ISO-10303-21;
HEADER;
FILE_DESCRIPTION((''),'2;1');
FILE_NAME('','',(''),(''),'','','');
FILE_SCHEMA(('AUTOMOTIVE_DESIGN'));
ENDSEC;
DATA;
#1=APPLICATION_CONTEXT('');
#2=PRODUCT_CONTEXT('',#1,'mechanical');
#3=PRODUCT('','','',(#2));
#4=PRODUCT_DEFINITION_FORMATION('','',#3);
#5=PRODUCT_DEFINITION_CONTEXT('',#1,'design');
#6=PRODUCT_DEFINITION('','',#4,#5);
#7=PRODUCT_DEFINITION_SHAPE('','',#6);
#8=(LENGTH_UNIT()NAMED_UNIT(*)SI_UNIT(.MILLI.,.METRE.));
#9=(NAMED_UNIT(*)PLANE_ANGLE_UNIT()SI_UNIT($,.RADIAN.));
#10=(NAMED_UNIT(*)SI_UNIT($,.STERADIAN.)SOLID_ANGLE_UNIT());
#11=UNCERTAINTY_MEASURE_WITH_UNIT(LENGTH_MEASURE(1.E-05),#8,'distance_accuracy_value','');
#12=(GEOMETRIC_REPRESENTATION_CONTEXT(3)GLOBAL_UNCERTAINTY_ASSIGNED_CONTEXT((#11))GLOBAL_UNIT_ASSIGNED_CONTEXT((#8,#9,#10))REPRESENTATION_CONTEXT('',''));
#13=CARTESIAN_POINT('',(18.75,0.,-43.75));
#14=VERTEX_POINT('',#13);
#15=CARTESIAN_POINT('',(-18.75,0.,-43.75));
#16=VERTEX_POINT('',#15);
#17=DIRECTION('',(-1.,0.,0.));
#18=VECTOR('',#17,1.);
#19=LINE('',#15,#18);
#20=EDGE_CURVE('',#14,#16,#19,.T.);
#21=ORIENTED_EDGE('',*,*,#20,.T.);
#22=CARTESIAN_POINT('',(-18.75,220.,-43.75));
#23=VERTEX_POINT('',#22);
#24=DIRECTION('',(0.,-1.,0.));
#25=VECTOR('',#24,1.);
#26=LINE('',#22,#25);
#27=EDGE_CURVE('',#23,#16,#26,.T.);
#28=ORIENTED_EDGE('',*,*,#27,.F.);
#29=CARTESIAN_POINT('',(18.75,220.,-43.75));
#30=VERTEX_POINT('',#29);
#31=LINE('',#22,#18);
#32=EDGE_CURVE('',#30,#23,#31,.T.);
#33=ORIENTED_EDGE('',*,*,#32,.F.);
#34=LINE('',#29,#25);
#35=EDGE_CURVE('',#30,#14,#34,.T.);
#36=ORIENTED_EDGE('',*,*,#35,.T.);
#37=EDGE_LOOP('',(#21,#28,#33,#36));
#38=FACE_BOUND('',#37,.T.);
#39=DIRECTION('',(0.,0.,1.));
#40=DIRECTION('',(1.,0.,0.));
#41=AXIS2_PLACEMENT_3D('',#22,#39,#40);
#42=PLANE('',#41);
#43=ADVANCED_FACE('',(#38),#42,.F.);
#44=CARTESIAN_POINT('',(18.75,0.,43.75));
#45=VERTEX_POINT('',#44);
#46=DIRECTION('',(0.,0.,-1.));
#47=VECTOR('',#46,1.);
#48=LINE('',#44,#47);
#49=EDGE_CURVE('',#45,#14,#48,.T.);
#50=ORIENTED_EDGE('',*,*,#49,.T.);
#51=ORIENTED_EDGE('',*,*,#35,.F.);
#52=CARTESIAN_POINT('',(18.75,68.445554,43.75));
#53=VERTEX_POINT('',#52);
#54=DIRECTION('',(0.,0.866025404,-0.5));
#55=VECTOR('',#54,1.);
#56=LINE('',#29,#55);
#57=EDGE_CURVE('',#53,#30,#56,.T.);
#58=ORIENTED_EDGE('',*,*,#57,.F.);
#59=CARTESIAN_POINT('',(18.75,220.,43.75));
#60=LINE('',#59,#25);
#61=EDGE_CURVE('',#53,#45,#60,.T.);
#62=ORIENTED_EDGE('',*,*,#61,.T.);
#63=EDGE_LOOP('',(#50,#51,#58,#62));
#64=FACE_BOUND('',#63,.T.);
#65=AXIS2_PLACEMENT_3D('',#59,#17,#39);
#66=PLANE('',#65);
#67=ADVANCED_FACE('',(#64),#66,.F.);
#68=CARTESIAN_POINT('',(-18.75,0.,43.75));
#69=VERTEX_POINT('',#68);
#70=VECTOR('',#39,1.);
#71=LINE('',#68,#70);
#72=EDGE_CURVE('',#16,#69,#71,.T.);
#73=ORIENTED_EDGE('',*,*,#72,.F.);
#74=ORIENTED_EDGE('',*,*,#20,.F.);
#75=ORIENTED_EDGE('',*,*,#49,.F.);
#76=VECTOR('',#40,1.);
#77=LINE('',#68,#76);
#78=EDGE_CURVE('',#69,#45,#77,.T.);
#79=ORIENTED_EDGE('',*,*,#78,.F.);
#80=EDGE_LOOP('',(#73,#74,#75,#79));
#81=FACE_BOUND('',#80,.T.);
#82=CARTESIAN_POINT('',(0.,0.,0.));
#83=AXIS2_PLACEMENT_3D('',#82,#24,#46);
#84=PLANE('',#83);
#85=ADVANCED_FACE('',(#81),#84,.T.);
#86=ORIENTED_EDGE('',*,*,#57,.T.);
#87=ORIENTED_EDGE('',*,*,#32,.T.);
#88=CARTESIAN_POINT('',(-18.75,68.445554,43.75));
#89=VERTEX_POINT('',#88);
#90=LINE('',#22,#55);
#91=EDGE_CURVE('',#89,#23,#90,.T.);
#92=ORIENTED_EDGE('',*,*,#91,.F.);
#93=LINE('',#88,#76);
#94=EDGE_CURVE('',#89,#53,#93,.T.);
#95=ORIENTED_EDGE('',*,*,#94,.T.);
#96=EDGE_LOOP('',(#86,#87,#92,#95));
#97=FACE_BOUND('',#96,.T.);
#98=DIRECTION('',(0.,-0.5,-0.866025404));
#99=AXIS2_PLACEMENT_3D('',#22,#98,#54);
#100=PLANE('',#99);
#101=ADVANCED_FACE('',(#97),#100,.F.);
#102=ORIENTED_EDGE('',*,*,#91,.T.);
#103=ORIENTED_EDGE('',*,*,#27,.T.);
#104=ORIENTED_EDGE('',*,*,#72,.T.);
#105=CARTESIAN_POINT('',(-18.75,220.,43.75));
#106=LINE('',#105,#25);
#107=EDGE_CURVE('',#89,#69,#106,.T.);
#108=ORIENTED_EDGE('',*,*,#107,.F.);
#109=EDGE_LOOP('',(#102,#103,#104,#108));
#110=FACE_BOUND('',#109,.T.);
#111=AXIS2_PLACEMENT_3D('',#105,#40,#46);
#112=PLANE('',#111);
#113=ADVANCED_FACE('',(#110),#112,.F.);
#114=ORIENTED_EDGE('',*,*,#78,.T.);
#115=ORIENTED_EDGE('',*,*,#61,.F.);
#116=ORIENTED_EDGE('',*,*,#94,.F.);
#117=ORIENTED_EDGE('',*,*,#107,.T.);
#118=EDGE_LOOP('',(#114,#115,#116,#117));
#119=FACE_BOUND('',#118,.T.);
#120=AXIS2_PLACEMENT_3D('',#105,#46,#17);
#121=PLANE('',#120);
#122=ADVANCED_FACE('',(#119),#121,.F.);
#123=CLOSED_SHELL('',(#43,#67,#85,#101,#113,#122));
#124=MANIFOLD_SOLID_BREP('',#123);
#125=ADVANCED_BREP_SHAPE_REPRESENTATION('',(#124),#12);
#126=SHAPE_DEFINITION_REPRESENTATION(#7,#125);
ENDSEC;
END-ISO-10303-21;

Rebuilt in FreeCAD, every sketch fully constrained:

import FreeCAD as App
import Part
import Sketcher
Q = App.Units.Quantity


def add_polygon(sketch, points):
    """Adds a closed chain of lines whose ends are joined by coincident constraints."""
    first, n = sketch.GeometryCount, len(points)
    for a, b in zip(points, points[1:] + points[:1]):
        sketch.addGeometry(Part.LineSegment(App.Vector(*a, 0), App.Vector(*b, 0)), False)
    for i in range(n):
        sketch.addConstraint(Sketcher.Constraint("Coincident", first + i, 2, first + (i + 1) % n, 1))

doc = App.newDocument("Part")
body = doc.addObject("PartDesign::Body", "Body")

# Sketch on XZ plane
sketch1 = body.newObject("Sketcher::SketchObject", "Sketch")
sketch1.AttachmentSupport = (doc.getObject("XZ_Plane"), [""])
sketch1.MapMode = "FlatFace"
add_polygon(sketch1, [(-19, -44), (-19, 44), (19, 44), (19, -44)])  # lines 0-3
sketch1.addConstraint(Sketcher.Constraint("Vertical", 0))
sketch1.addConstraint(Sketcher.Constraint("Horizontal", 1))
sketch1.addConstraint(Sketcher.Constraint("Vertical", 2))
sketch1.addConstraint(Sketcher.Constraint("Horizontal", 3))
sketch1.addConstraint(Sketcher.Constraint("Symmetric", 0, 2, 2, 2, -1, 1))
sketch1.addConstraint(Sketcher.Constraint("DistanceX", 1, 1, 1, 2, Q("37.5 mm")))
sketch1.addConstraint(Sketcher.Constraint("DistanceY", 0, 1, 0, 2, Q("87.5 mm")))
pad1 = body.newObject("PartDesign::Pad", "Pad")
pad1.Profile = sketch1
pad1.Length = 220
pad1.Reversed = True

# Sketch on YZ plane
sketch2 = body.newObject("Sketcher::SketchObject", "Sketch001")
sketch2.AttachmentSupport = (doc.getObject("YZ_Plane"), [""])
sketch2.MapMode = "FlatFace"
add_polygon(sketch2, [(68, 44), (220, -44), (220, 44)])  # lines 0-2
sketch2.addConstraint(Sketcher.Constraint("Vertical", 1))
sketch2.addConstraint(Sketcher.Constraint("Horizontal", 2))
sketch2.addConstraint(Sketcher.Constraint("Angle", 0, Q("-30 deg")))
sketch2.addConstraint(Sketcher.Constraint("Distance", 0, Q("175 mm")))
sketch2.addConstraint(Sketcher.Constraint("DistanceX", -1, 1, 0, 2, Q("220 mm")))
sketch2.addConstraint(Sketcher.Constraint("DistanceY", 0, 2, -1, 1, Q("43.75 mm")))
pocket1 = body.newObject("PartDesign::Pocket", "Pocket")
pocket1.Profile = sketch2
pocket1.Type = "ThroughAll"
pocket1.Midplane = True

doc.recompute()
